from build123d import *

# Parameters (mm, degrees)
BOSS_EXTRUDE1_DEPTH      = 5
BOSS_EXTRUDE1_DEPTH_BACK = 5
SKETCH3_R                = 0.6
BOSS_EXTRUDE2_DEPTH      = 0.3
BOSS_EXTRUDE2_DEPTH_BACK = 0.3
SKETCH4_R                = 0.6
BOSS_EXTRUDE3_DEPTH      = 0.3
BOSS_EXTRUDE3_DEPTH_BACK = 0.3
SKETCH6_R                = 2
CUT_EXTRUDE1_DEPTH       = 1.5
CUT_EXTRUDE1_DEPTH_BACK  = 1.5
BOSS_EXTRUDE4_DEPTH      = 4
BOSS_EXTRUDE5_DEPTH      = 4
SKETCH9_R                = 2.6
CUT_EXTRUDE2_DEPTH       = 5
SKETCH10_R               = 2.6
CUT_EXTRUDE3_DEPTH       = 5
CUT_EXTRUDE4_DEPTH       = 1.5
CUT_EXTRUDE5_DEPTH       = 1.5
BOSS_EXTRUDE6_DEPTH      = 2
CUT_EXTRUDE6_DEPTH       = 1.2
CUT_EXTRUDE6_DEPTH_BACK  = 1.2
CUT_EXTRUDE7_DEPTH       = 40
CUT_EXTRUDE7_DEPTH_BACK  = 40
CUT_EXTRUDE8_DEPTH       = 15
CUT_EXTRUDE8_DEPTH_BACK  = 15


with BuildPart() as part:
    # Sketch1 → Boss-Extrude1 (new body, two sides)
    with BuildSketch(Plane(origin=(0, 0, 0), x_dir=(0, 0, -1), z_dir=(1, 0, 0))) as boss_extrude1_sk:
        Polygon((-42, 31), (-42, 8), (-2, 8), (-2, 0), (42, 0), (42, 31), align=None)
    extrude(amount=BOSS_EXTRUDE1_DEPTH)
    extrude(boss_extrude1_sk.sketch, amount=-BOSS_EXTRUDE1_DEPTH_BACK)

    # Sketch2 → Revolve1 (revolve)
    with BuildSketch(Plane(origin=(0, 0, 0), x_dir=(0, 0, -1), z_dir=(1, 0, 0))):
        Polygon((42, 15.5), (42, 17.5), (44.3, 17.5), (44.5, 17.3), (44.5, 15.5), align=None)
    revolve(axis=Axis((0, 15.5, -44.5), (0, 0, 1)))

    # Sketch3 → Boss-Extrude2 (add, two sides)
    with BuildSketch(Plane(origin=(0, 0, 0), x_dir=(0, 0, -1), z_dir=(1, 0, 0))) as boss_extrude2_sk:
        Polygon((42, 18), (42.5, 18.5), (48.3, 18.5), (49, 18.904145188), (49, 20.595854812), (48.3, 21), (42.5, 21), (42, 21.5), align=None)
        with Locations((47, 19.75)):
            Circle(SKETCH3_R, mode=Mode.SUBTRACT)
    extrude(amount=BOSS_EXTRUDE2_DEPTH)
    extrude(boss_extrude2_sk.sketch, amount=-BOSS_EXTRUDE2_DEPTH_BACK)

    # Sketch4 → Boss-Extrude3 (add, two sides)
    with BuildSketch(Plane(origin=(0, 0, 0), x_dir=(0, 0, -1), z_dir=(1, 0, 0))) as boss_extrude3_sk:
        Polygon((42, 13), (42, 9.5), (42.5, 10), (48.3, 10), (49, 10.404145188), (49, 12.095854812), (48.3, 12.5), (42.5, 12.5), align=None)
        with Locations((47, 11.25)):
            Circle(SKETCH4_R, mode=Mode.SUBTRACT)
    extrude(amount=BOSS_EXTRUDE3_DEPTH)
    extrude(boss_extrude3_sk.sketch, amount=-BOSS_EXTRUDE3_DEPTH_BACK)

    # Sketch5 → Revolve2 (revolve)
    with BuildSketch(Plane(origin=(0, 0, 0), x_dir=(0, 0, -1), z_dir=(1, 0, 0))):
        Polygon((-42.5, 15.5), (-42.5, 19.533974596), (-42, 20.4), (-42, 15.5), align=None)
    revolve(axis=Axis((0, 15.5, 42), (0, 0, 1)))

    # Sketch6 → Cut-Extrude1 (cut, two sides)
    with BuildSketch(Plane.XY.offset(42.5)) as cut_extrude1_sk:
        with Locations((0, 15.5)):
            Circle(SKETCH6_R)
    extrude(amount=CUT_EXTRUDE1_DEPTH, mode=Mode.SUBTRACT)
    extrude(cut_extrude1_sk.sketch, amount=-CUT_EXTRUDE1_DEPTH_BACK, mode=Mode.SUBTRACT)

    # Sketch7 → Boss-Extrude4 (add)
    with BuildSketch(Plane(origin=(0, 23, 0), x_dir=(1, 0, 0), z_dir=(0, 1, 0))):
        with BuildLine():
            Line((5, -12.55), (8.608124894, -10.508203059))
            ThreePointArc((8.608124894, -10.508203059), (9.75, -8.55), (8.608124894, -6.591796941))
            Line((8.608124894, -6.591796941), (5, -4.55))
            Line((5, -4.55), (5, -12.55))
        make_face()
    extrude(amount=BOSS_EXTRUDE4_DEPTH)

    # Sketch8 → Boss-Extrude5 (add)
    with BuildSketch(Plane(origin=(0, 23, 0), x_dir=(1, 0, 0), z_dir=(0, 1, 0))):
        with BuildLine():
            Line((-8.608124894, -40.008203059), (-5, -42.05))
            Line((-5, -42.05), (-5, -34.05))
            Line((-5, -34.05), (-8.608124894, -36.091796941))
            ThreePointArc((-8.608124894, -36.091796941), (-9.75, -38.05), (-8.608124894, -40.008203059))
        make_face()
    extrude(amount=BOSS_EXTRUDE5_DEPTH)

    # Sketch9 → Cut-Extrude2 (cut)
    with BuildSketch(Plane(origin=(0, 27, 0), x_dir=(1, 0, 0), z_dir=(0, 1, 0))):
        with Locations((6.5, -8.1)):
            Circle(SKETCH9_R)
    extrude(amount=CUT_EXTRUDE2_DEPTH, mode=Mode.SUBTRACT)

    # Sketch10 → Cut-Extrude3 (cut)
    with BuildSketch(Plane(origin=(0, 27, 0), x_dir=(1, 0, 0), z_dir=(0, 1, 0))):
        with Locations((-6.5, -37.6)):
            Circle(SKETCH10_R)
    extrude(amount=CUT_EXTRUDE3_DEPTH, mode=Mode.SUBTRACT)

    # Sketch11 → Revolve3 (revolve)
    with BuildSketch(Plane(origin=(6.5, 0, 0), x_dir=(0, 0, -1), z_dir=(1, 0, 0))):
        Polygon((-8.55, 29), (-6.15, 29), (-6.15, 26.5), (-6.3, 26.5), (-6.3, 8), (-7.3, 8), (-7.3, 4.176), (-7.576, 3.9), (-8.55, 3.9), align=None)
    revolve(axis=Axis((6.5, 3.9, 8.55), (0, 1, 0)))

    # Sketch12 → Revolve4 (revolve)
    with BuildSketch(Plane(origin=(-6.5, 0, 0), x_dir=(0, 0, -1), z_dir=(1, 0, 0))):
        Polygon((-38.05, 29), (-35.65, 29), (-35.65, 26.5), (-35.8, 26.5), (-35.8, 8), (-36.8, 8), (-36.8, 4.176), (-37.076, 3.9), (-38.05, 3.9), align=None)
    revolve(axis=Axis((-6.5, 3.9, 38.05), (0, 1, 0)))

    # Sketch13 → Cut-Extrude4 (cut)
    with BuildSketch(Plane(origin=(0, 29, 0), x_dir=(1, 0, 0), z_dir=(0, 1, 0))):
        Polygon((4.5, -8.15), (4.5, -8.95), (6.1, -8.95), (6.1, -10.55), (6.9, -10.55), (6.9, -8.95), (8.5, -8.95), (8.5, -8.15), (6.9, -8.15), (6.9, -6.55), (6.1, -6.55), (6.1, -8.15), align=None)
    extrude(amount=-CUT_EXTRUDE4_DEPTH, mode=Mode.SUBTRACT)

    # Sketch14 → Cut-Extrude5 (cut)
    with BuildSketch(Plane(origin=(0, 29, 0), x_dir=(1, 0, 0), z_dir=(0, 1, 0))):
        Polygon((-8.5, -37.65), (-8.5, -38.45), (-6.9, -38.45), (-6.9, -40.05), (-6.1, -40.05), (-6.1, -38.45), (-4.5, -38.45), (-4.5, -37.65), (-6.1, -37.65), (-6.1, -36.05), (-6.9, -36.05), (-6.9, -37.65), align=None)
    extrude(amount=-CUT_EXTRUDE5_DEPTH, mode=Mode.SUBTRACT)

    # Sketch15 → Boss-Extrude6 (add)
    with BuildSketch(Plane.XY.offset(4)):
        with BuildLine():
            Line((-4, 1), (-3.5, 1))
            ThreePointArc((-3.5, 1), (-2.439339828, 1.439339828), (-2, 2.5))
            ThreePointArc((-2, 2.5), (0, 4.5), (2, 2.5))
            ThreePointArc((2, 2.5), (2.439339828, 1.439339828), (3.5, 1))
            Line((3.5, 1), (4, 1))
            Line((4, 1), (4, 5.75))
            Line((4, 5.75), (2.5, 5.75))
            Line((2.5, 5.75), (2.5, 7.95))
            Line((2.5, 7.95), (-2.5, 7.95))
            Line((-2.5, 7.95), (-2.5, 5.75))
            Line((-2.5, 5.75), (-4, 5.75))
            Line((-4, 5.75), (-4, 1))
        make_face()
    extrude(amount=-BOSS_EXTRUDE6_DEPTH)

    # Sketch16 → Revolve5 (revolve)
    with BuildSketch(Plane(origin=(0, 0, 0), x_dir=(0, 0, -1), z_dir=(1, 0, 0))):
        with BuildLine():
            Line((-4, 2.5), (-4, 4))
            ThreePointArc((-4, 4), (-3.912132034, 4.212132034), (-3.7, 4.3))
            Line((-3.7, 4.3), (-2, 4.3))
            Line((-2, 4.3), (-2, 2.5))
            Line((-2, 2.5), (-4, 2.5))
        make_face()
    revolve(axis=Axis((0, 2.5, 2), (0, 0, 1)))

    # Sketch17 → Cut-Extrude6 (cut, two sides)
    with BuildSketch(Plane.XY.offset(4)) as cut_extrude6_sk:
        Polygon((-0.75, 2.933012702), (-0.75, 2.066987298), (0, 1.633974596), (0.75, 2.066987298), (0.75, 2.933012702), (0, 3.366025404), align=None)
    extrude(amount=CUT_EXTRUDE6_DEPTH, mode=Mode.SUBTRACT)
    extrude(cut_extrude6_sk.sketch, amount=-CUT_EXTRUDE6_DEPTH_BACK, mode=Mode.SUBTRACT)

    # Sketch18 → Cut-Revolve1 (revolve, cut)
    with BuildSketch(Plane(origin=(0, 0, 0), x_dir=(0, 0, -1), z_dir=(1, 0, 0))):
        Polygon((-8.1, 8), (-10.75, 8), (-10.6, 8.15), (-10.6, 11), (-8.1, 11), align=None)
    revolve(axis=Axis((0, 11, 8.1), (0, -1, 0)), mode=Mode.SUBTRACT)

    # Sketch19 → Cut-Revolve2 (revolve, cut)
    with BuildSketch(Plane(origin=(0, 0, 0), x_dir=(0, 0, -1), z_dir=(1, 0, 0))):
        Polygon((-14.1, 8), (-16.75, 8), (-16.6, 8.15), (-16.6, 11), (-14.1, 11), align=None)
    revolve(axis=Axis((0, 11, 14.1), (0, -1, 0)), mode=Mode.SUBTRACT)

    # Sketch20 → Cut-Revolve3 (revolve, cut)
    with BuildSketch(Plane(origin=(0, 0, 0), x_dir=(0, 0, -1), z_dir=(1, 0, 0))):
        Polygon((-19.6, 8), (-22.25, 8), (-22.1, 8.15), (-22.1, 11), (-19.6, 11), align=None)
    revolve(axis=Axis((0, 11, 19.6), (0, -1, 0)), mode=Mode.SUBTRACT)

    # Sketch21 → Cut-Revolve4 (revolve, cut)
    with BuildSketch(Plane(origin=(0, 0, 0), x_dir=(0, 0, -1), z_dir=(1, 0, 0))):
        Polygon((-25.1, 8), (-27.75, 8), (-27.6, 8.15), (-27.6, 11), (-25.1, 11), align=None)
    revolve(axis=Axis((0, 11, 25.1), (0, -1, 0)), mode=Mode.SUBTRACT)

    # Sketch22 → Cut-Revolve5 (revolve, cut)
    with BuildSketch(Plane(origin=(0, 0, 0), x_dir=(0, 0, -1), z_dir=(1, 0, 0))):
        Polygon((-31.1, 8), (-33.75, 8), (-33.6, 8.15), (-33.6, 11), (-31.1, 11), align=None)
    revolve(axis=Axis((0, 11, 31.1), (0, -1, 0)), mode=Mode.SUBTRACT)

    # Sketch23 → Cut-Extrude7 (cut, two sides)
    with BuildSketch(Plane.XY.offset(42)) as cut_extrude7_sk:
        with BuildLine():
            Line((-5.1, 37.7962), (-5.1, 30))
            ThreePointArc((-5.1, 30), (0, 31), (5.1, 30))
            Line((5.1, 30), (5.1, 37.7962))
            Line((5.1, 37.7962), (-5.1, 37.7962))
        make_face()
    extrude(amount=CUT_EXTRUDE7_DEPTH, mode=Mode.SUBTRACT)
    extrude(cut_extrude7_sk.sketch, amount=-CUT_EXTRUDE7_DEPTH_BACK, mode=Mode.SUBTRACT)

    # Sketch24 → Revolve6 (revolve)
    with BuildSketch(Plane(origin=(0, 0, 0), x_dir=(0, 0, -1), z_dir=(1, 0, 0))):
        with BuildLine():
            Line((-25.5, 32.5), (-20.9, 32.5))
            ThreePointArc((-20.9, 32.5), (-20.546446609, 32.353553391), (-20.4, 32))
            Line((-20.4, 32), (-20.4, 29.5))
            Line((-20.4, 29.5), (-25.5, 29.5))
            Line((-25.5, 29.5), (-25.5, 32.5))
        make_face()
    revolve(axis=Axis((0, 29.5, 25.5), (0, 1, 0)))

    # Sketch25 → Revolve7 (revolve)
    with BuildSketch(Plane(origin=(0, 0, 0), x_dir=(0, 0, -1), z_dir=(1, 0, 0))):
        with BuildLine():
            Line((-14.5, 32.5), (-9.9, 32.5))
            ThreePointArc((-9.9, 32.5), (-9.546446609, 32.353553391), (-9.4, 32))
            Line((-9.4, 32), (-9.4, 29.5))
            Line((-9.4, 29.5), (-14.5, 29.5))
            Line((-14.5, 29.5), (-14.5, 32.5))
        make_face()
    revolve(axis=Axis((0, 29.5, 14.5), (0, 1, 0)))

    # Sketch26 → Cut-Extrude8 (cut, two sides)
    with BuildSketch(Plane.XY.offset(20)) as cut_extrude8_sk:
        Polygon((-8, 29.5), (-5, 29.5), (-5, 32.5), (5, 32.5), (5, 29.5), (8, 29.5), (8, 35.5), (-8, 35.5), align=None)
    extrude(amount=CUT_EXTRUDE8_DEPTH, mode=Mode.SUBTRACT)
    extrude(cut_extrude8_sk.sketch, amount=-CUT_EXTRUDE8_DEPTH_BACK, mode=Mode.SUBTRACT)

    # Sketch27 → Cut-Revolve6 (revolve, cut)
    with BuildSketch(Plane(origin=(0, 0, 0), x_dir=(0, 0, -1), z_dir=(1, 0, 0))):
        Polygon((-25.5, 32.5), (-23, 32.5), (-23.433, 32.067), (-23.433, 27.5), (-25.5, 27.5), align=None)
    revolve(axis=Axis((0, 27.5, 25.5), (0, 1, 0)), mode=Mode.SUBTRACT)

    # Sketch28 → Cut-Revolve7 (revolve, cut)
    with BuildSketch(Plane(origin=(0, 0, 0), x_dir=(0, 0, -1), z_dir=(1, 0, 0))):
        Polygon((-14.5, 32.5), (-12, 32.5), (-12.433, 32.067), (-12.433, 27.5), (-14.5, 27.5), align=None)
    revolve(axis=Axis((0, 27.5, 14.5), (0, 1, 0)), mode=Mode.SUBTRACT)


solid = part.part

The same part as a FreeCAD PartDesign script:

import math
import FreeCAD as App
import Part
import Sketcher
Q = App.Units.Quantity


def add_polygon(sketch, points):
    """Adds a closed chain of lines whose ends are joined by coincident constraints."""
    first, n = sketch.GeometryCount, len(points)
    for a, b in zip(points, points[1:] + points[:1]):
        sketch.addGeometry(Part.LineSegment(App.Vector(*a, 0), App.Vector(*b, 0)), False)
    for i in range(n):
        sketch.addConstraint(Sketcher.Constraint("Coincident", first + i, 2, first + (i + 1) % n, 1))

doc = App.newDocument("Part")
body = doc.addObject("PartDesign::Body", "Body")

# Sketch on YZ plane
sketch1 = body.newObject("Sketcher::SketchObject", "Sketch")
sketch1.AttachmentSupport = (doc.getObject("YZ_Plane"), [""])
sketch1.MapMode = "FlatFace"
add_polygon(sketch1, [(31, 42), (8, 42), (8, 2), (0, 2), (0, -42), (31, -42)])  # lines 0-5
sketch1.addConstraint([
    Sketcher.Constraint("Horizontal", 0),
    Sketcher.Constraint("Vertical", 1),
    Sketcher.Constraint("Horizontal", 2),
    Sketcher.Constraint("Vertical", 3),
    Sketcher.Constraint("Horizontal", 4),
    Sketcher.Constraint("Vertical", 5),
    Sketcher.Constraint("PointOnObject", 2, 2, -2),
    Sketcher.Constraint("DistanceX", 0, 2, 0, 1, Q("23 mm")),
    Sketcher.Constraint("DistanceX", 2, 2, 2, 1, Q("8 mm")),
    Sketcher.Constraint("DistanceY", 1, 2, 1, 1, Q("40 mm")),
    Sketcher.Constraint("DistanceY", 3, 2, 3, 1, Q("44 mm")),
    Sketcher.Constraint("DistanceY", -1, 1, 0, 2, Q("42 mm")),
])
pad1 = body.newObject("PartDesign::Pad", "Pad")
pad1.Profile = sketch1
pad1.Type = "TwoLengths"
pad1.Length = 5
pad1.Length2 = 5

# Sketch on YZ plane
sketch2 = body.newObject("Sketcher::SketchObject", "Sketch001")
sketch2.AttachmentSupport = (doc.getObject("YZ_Plane"), [""])
sketch2.MapMode = "FlatFace"
add_polygon(sketch2, [(17.5, -42), (15.5, -42), (15.5, -44.5), (17.3, -44.5), (17.5, -44.3)])  # lines 0-4
sketch2.addGeometry(Part.LineSegment(App.Vector(15.5, -44.5, 0), App.Vector(15.5, -42, 0)), True)  # axis
sketch2.addConstraint([
    Sketcher.Constraint("Horizontal", 0),
    Sketcher.Constraint("Vertical", 1),
    Sketcher.Constraint("Horizontal", 2),
    Sketcher.Constraint("Vertical", 4),
    Sketcher.Constraint("Vertical", 5),
    Sketcher.Constraint("Coincident", 5, 1, 1, 2),
    Sketcher.Constraint("Horizontal", 4, 2, 5, 2),
    Sketcher.Constraint("DistanceX", 0, 2, 0, 1, Q("2 mm")),
    Sketcher.Constraint("Angle", 3, Q("45 deg")),
    Sketcher.Constraint("DistanceX", 2, 1, 2, 2, Q("1.8 mm")),
    Sketcher.Constraint("DistanceY", 1, 2, 1, 1, Q("2.5 mm")),
    Sketcher.Constraint("DistanceY", 0, 2, -1, 1, Q("42 mm")),
    Sketcher.Constraint("DistanceX", -1, 1, 0, 2, Q("15.5 mm")),
])
revolution = body.newObject("PartDesign::Revolution", "Revolution")
revolution.Profile = sketch2
revolution.ReferenceAxis = (sketch2, ["Axis0"])
revolution.Angle = 360

# Sketch on YZ plane
sketch3 = body.newObject("Sketcher::SketchObject", "Sketch002")
sketch3.AttachmentSupport = (doc.getObject("YZ_Plane"), [""])
sketch3.MapMode = "FlatFace"
add_polygon(sketch3, [(18, -42), (18.5, -42.5), (18.5, -48.3), (18.9, -49), (20.6, -49), (21, -48.3), (21, -42.5), (21.5, -42)])  # lines 0-7
sketch3.addGeometry(Part.Circle(App.Vector(19.8, -47, 0), App.Vector(0, 0, 1), 0.6), False)  # 8
sketch3.addConstraint([
    Sketcher.Constraint("Vertical", 1),
    Sketcher.Constraint("Horizontal", 3),
    Sketcher.Constraint("Vertical", 5),
    Sketcher.Constraint("Horizontal", 7),
    Sketcher.Constraint("Perpendicular", 0, 6),
    Sketcher.Constraint("Horizontal", 1, 2, 4, 2),
    Sketcher.Constraint("Horizontal", 0, 2, 5, 2),
    Sketcher.Constraint("Equal", 2, 4),
    Sketcher.Constraint("Equal", 0, 6),
    Sketcher.Constraint("Diameter", 8, Q("1.2 mm")),
    Sketcher.Constraint("Angle", 2, Q("-60 deg")),
    Sketcher.Constraint("DistanceX", 7, 2, 7, 1, Q("3.5 mm")),
    Sketcher.Constraint("DistanceY", 1, 2, 1, 1, Q("5.8 mm")),
    Sketcher.Constraint("DistanceY", 8, 3, -1, 1, Q("47 mm")),
    Sketcher.Constraint("DistanceY", 2, 2, -1, 1, Q("49 mm")),
    Sketcher.Constraint("DistanceX", -1, 1, 4, 2, Q("21 mm")),
    Sketcher.Constraint("DistanceY", 6, 2, -1, 1, Q("42 mm")),
    Sketcher.Constraint("DistanceX", -1, 1, 7, 2, Q("18 mm")),
    Sketcher.Constraint("DistanceX", -1, 1, 8, 3, Q("19.75 mm")),
])
pad2 = body.newObject("PartDesign::Pad", "Pad001")
pad2.Profile = sketch3
pad2.Type = "TwoLengths"
pad2.Length = 0.3
pad2.Length2 = 0.3

# Sketch on YZ plane
sketch4 = body.newObject("Sketcher::SketchObject", "Sketch003")
sketch4.AttachmentSupport = (doc.getObject("YZ_Plane"), [""])
sketch4.MapMode = "FlatFace"
add_polygon(sketch4, [(13, -42), (9.5, -42), (10, -42.5), (10, -48.3), (10.4, -49), (12.1, -49), (12.5, -48.3), (12.5, -42.5)])  # lines 0-7
sketch4.addGeometry(Part.Circle(App.Vector(11.2, -47, 0), App.Vector(0, 0, 1), 0.6), False)  # 8
sketch4.addConstraint([
    Sketcher.Constraint("Horizontal", 0),
    Sketcher.Constraint("Vertical", 2),
    Sketcher.Constraint("Horizontal", 4),
    Sketcher.Constraint("Vertical", 6),
    Sketcher.Constraint("Perpendicular", 1, 7),
    Sketcher.Constraint("Horizontal", 2, 2, 5, 2),
    Sketcher.Constraint("Horizontal", 1, 2, 6, 2),
    Sketcher.Constraint("Equal", 3, 5),
    Sketcher.Constraint("Equal", 1, 7),
    Sketcher.Constraint("Diameter", 8, Q("1.2 mm")),
    Sketcher.Constraint("Angle", 3, Q("-60 deg")),
    Sketcher.Constraint("DistanceX", 0, 2, 0, 1, Q("3.5 mm")),
    Sketcher.Constraint("DistanceY", 2, 2, 2, 1, Q("5.8 mm")),
    Sketcher.Constraint("DistanceY", 8, 3, -1, 1, Q("47 mm")),
    Sketcher.Constraint("DistanceY", 0, 2, -1, 1, Q("42 mm")),
    Sketcher.Constraint("DistanceX", -1, 1, 1, 2, Q("10 mm")),
    Sketcher.Constraint("DistanceY", 3, 2, -1, 1, Q("49 mm")),
    Sketcher.Constraint("DistanceX", -1, 1, 7, 2, Q("13 mm")),
    Sketcher.Constraint("DistanceX", -1, 1, 8, 3, Q("11.25 mm")),
])
pad3 = body.newObject("PartDesign::Pad", "Pad002")
pad3.Profile = sketch4
pad3.Type = "TwoLengths"
pad3.Length = 0.3
pad3.Length2 = 0.3

# Sketch on YZ plane
sketch5 = body.newObject("Sketcher::SketchObject", "Sketch004")
sketch5.AttachmentSupport = (doc.getObject("YZ_Plane"), [""])
sketch5.MapMode = "FlatFace"
add_polygon(sketch5, [(19.5, 42.5), (15.5, 42.5), (15.5, 42), (20.4, 42)])  # lines 0-3
sketch5.addGeometry(Part.LineSegment(App.Vector(15.5, 42, 0), App.Vector(15.5, 42.5, 0)), True)  # axis
sketch5.addConstraint([
    Sketcher.Constraint("Horizontal", 0),
    Sketcher.Constraint("Vertical", 1),
    Sketcher.Constraint("Horizontal", 2),
    Sketcher.Constraint("Vertical", 4),
    Sketcher.Constraint("Coincident", 4, 1, 1, 2),
    Sketcher.Constraint("Horizontal", 3, 2, 4, 2),
    Sketcher.Constraint("Angle", 3, Q("150 deg")),
    Sketcher.Constraint("Distance", 3, Q("1 mm")),
    Sketcher.Constraint("DistanceX", 2, 1, 2, 2, Q("4.9 mm")),
    Sketcher.Constraint("DistanceY", -1, 1, 1, 2, Q("42 mm")),
    Sketcher.Constraint("DistanceX", -1, 1, 0, 2, Q("15.5 mm")),
])
revolution2 = body.newObject("PartDesign::Revolution", "Revolution001")
revolution2.Profile = sketch5
revolution2.ReferenceAxis = (sketch5, ["Axis0"])
revolution2.Angle = 360

# Sketch on XY plane
sketch6 = body.newObject("Sketcher::SketchObject", "Sketch005")
sketch6.AttachmentSupport = (doc.getObject("XY_Plane"), [""])
sketch6.MapMode = "FlatFace"
sketch6.AttachmentOffset = App.Placement(App.Vector(0, 0, 42.5), App.Rotation())
sketch6.addGeometry(Part.Circle(App.Vector(0, 15.5, 0), App.Vector(0, 0, 1), 2), False)
sketch6.addConstraint([
    Sketcher.Constraint("PointOnObject", 0, 3, -2),
    Sketcher.Constraint("Diameter", 0, Q("4 mm")),
    Sketcher.Constraint("DistanceY", -1, 1, 0, 3, Q("15.5 mm")),
])
pocket1 = body.newObject("PartDesign::Pocket", "Pocket")
pocket1.Profile = sketch6
pocket1.Type = "TwoLengths"
pocket1.Length = 1.5
pocket1.Length2 = 1.5
pocket1.Reversed = True

# Sketch on XZ plane
sketch7 = body.newObject("Sketcher::SketchObject", "Sketch006")
sketch7.AttachmentSupport = (doc.getObject("XZ_Plane"), [""])
sketch7.MapMode = "FlatFace"
sketch7.AttachmentOffset = App.Placement(App.Vector(0, 0, -23), App.Rotation())
sketch7.addGeometry([
    Part.LineSegment(App.Vector(5, 12.6, 0), App.Vector(8.6, 10.5, 0)),
    Part.ArcOfCircle(Part.Circle(App.Vector(7.5, 8.6, 0), App.Vector(0, 0, 1), 2.2), math.radians(-60), math.radians(60)),
    Part.LineSegment(App.Vector(8.6, 6.6, 0), App.Vector(5, 4.5, 0)),
    Part.LineSegment(App.Vector(5, 4.5, 0), App.Vector(5, 12.6, 0)),
], False)
sketch7.addConstraint([
    Sketcher.Constraint("Tangent", 0, 2, 1, 2),
    Sketcher.Constraint("Tangent", 1, 1, 2, 1),
    Sketcher.Constraint("Coincident", 2, 2, 3, 1),
    Sketcher.Constraint("Coincident", 3, 2, 0, 1),
    Sketcher.Constraint("Vertical", 3),
    Sketcher.Constraint("Vertical", 0, 2, 1, 1),
    Sketcher.Constraint("DistanceY", 3, 1, 3, 2, Q("8 mm")),
    Sketcher.Constraint("Radius", 1, Q("2.25 mm")),
    Sketcher.Constraint("DistanceX", -1, 1, 2, 2, Q("5 mm")),
    Sketcher.Constraint("DistanceX", -1, 1, 1, 3, Q("7.5 mm")),
    Sketcher.Constraint("DistanceY", -1, 1, 1, 3, Q("8.55 mm")),
])
pad4 = body.newObject("PartDesign::Pad", "Pad003")
pad4.Profile = sketch7
pad4.Length = 4
pad4.Reversed = True

# Sketch on XZ plane
sketch8 = body.newObject("Sketcher::SketchObject", "Sketch007")
sketch8.AttachmentSupport = (doc.getObject("XZ_Plane"), [""])
sketch8.MapMode = "FlatFace"
sketch8.AttachmentOffset = App.Placement(App.Vector(0, 0, -23), App.Rotation())
sketch8.addGeometry([
    Part.LineSegment(App.Vector(-8.6, 40, 0), App.Vector(-5, 42, 0)),
    Part.LineSegment(App.Vector(-5, 42, 0), App.Vector(-5, 34, 0)),
    Part.LineSegment(App.Vector(-5, 34, 0), App.Vector(-8.6, 36.1, 0)),
    Part.ArcOfCircle(Part.Circle(App.Vector(-7.5, 38, 0), App.Vector(0, 0, 1), 2.2), math.radians(120), math.radians(240)),
], False)
sketch8.addConstraint([
    Sketcher.Constraint("Coincident", 0, 2, 1, 1),
    Sketcher.Constraint("Coincident", 1, 2, 2, 1),
    Sketcher.Constraint("Tangent", 2, 2, 3, 2),
    Sketcher.Constraint("Tangent", 3, 1, 0, 1),
    Sketcher.Constraint("Vertical", 1),
    Sketcher.Constraint("Vertical", 2, 2, 3, 1),
    Sketcher.Constraint("DistanceY", 1, 2, 1, 1, Q("8 mm")),
    Sketcher.Constraint("Radius", 3, Q("2.25 mm")),
    Sketcher.Constraint("DistanceX", 0, 2, -1, 1, Q("5 mm")),
    Sketcher.Constraint("DistanceX", 3, 3, -1, 1, Q("7.5 mm")),
    Sketcher.Constraint("DistanceY", -1, 1, 3, 3, Q("38.05 mm")),
])
pad5 = body.newObject("PartDesign::Pad", "Pad004")
pad5.Profile = sketch8
pad5.Length = 4
pad5.Reversed = True

# Sketch on XZ plane
sketch9 = body.newObject("Sketcher::SketchObject", "Sketch008")
sketch9.AttachmentSupport = (doc.getObject("XZ_Plane"), [""])
sketch9.MapMode = "FlatFace"
sketch9.AttachmentOffset = App.Placement(App.Vector(0, 0, -27), App.Rotation())
sketch9.addGeometry(Part.Circle(App.Vector(6.5, 8.1, 0), App.Vector(0, 0, 1), 2.6), False)
sketch9.addConstraint([
    Sketcher.Constraint("Diameter", 0, Q("5.2 mm")),
    Sketcher.Constraint("DistanceX", -1, 1, 0, 3, Q("6.5 mm")),
    Sketcher.Constraint("DistanceY", -1, 1, 0, 3, Q("8.1 mm")),
])
pocket2 = body.newObject("PartDesign::Pocket", "Pocket001")
pocket2.Profile = sketch9
pocket2.Length = 5

# Sketch on XZ plane
sketch10 = body.newObject("Sketcher::SketchObject", "Sketch009")
sketch10.AttachmentSupport = (doc.getObject("XZ_Plane"), [""])
sketch10.MapMode = "FlatFace"
sketch10.AttachmentOffset = App.Placement(App.Vector(0, 0, -27), App.Rotation())
sketch10.addGeometry(Part.Circle(App.Vector(-6.5, 37.6, 0), App.Vector(0, 0, 1), 2.6), False)
sketch10.addConstraint([
    Sketcher.Constraint("Diameter", 0, Q("5.2 mm")),
    Sketcher.Constraint("DistanceX", 0, 3, -1, 1, Q("6.5 mm")),
    Sketcher.Constraint("DistanceY", -1, 1, 0, 3, Q("37.6 mm")),
])
pocket3 = body.newObject("PartDesign::Pocket", "Pocket002")
pocket3.Profile = sketch10
pocket3.Length = 5

# Sketch on YZ plane
sketch11 = body.newObject("Sketcher::SketchObject", "Sketch010")
sketch11.AttachmentSupport = (doc.getObject("YZ_Plane"), [""])
sketch11.MapMode = "FlatFace"
sketch11.AttachmentOffset = App.Placement(App.Vector(0, 0, 6.5), App.Rotation())
add_polygon(sketch11, [(29, 6.15), (29, 8.55), (3.9, 8.55), (3.9, 7.58), (4.18, 7.3), (8, 7.3), (8, 6.3), (26.5, 6.3), (26.5, 6.15)])  # lines 0-8
sketch11.addGeometry(Part.LineSegment(App.Vector(3.9, 8.55, 0), App.Vector(29, 8.55, 0)), True)  # axis
sketch11.addConstraint([
    Sketcher.Constraint("Vertical", 0),
    Sketcher.Constraint("Horizontal", 1),
    Sketcher.Constraint("Vertical", 2),
    Sketcher.Constraint("Horizontal", 4),
    Sketcher.Constraint("Vertical", 5),
    Sketcher.Constraint("Horizontal", 6),
    Sketcher.Constraint("Vertical", 7),
    Sketcher.Constraint("Horizontal", 8),
    Sketcher.Constraint("Horizontal", 9),
    Sketcher.Constraint("Coincident", 9, 1, 1, 2),
    Sketcher.Constraint("Vertical", 8, 2, 9, 2),
    Sketcher.Constraint("DistanceY", 5, 2, 5, 1, Q("1 mm")),
    Sketcher.Constraint("Angle", 3, Q("-45 deg")),
    Sketcher.Constraint("DistanceX", 1, 2, 1, 1, Q("25.1 mm")),
    Sketcher.Constraint("DistanceX", 6, 1, 6, 2, Q("18.5 mm")),
    Sketcher.Constraint("DistanceX", 8, 1, 8, 2, Q("2.5 mm")),
    Sketcher.Constraint("DistanceY", 0, 1, 0, 2, Q("2.4 mm")),
    Sketcher.Constraint("DistanceX", -1, 1, 0, 2, Q("29 mm")),
    Sketcher.Constraint("DistanceY", 7, 2, 7, 1, Q("0.15 mm")),
    Sketcher.Constraint("DistanceY", -1, 1, 3, 2, Q("7.3 mm")),
    Sketcher.Constraint("DistanceX", 4, 1, 4, 2, Q("3.824 mm")),
])
revolution3 = body.newObject("PartDesign::Revolution", "Revolution002")
revolution3.Profile = sketch11
revolution3.ReferenceAxis = (sketch11, ["Axis0"])
revolution3.Angle = 360

# Sketch on YZ plane
sketch12 = body.newObject("Sketcher::SketchObject", "Sketch011")
sketch12.AttachmentSupport = (doc.getObject("YZ_Plane"), [""])
sketch12.MapMode = "FlatFace"
sketch12.AttachmentOffset = App.Placement(App.Vector(0, 0, -6.5), App.Rotation())
add_polygon(sketch12, [(29, 35.65), (29, 38.05), (3.9, 38.05), (3.9, 37.08), (4.18, 36.8), (8, 36.8), (8, 35.8), (26.5, 35.8), (26.5, 35.65)])  # lines 0-8
sketch12.addGeometry(Part.LineSegment(App.Vector(3.9, 38.05, 0), App.Vector(29, 38.05, 0)), True)  # axis
sketch12.addConstraint([
    Sketcher.Constraint("Vertical", 0),
    Sketcher.Constraint("Horizontal", 1),
    Sketcher.Constraint("Vertical", 2),
    Sketcher.Constraint("Horizontal", 4),
    Sketcher.Constraint("Vertical", 5),
    Sketcher.Constraint("Horizontal", 6),
    Sketcher.Constraint("Vertical", 7),
    Sketcher.Constraint("Horizontal", 8),
    Sketcher.Constraint("Horizontal", 9),
    Sketcher.Constraint("Coincident", 9, 1, 1, 2),
    Sketcher.Constraint("Vertical", 8, 2, 9, 2),
    Sketcher.Constraint("DistanceY", 5, 2, 5, 1, Q("1 mm")),
    Sketcher.Constraint("Angle", 3, Q("-45 deg")),
    Sketcher.Constraint("DistanceX", 1, 2, 1, 1, Q("25.1 mm")),
    Sketcher.Constraint("DistanceX", 6, 1, 6, 2, Q("18.5 mm")),
    Sketcher.Constraint("DistanceX", 8, 1, 8, 2, Q("2.5 mm")),
    Sketcher.Constraint("DistanceY", 0, 1, 0, 2, Q("2.4 mm")),
    Sketcher.Constraint("DistanceX", -1, 1, 0, 2, Q("29 mm")),
    Sketcher.Constraint("DistanceY", 7, 2, 7, 1, Q("0.15 mm")),
    Sketcher.Constraint("DistanceY", -1, 1, 3, 2, Q("36.8 mm")),
    Sketcher.Constraint("DistanceX", 4, 1, 4, 2, Q("3.824 mm")),
])
revolution4 = body.newObject("PartDesign::Revolution", "Revolution003")
revolution4.Profile = sketch12
revolution4.ReferenceAxis = (sketch12, ["Axis0"])
revolution4.Angle = 360

# Sketch on XZ plane
sketch13 = body.newObject("Sketcher::SketchObject", "Sketch012")
sketch13.AttachmentSupport = (doc.getObject("XZ_Plane"), [""])
sketch13.MapMode = "FlatFace"
sketch13.AttachmentOffset = App.Placement(App.Vector(0, 0, -29), App.Rotation())
add_polygon(sketch13, [(4.5, 8.2), (4.5, 8.9), (6.1, 8.9), (6.1, 10.6), (6.9, 10.6), (6.9, 8.9), (8.5, 8.9), (8.5, 8.2), (6.9, 8.2), (6.9, 6.5), (6.1, 6.5), (6.1, 8.2)])  # lines 0-11
sketch13.addConstraint([
    Sketcher.Constraint("Vertical", 0),
    Sketcher.Constraint("Horizontal", 1),
    Sketcher.Constraint("Vertical", 2),
    Sketcher.Constraint("Horizontal", 3),
    Sketcher.Constraint("Vertical", 4),
    Sketcher.Constraint("Horizontal", 5),
    Sketcher.Constraint("Vertical", 6),
    Sketcher.Constraint("Horizontal", 7),
    Sketcher.Constraint("Vertical", 8),
    Sketcher.Constraint("Horizontal", 9),
    Sketcher.Constraint("Vertical", 10),
    Sketcher.Constraint("Horizontal", 11),
    Sketcher.Constraint("Horizontal", 1, 2, 4, 2),
    Sketcher.Constraint("Horizontal", 7, 2, 10, 2),
    Sketcher.Constraint("Vertical", 4, 2, 7, 2),
    Sketcher.Constraint("Vertical", 2, 2, 9, 2),
    Sketcher.Constraint("Equal", 1, 5),
    Sketcher.Constraint("Equal", 9, 0),
    Sketcher.Constraint("Equal", 11, 2),
    Sketcher.Constraint("Equal", 4, 8),
    Sketcher.Constraint("DistanceX", 1, 1, 1, 2, Q("1.6 mm")),
    Sketcher.Constraint("DistanceX", 3, 1, 3, 2, Q("0.8 mm")),
    Sketcher.Constraint("DistanceX", -1, 1, 0, 2, Q("4.5 mm")),
    Sketcher.Constraint("DistanceY", -1, 1, 0, 2, Q("8.95 mm")),
])
pocket4 = body.newObject("PartDesign::Pocket", "Pocket003")
pocket4.Profile = sketch13
pocket4.Length = 1.5
pocket4.Reversed = True

# Sketch on XZ plane
sketch14 = body.newObject("Sketcher::SketchObject", "Sketch013")
sketch14.AttachmentSupport = (doc.getObject("XZ_Plane"), [""])
sketch14.MapMode = "FlatFace"
sketch14.AttachmentOffset = App.Placement(App.Vector(0, 0, -29), App.Rotation())
add_polygon(sketch14, [(-8.5, 37.6), (-8.5, 38.5), (-6.9, 38.5), (-6.9, 40), (-6.1, 40), (-6.1, 38.5), (-4.5, 38.5), (-4.5, 37.6), (-6.1, 37.6), (-6.1, 36), (-6.9, 36), (-6.9, 37.6)])  # lines 0-11
sketch14.addConstraint([
    Sketcher.Constraint("Vertical", 0),
    Sketcher.Constraint("Horizontal", 1),
    Sketcher.Constraint("Vertical", 2),
    Sketcher.Constraint("Horizontal", 3),
    Sketcher.Constraint("Vertical", 4),
    Sketcher.Constraint("Horizontal", 5),
    Sketcher.Constraint("Vertical", 6),
    Sketcher.Constraint("Horizontal", 7),
    Sketcher.Constraint("Vertical", 8),
    Sketcher.Constraint("Horizontal", 9),
    Sketcher.Constraint("Vertical", 10),
    Sketcher.Constraint("Horizontal", 11),
    Sketcher.Constraint("Horizontal", 1, 2, 4, 2),
    Sketcher.Constraint("Horizontal", 7, 2, 10, 2),
    Sketcher.Constraint("Vertical", 4, 2, 7, 2),
    Sketcher.Constraint("Vertical", 2, 2, 9, 2),
    Sketcher.Constraint("Equal", 1, 5),
    Sketcher.Constraint("Equal", 9, 0),
    Sketcher.Constraint("Equal", 11, 2),
    Sketcher.Constraint("Equal", 4, 8),
    Sketcher.Constraint("DistanceX", 1, 1, 1, 2, Q("1.6 mm")),
    Sketcher.Constraint("DistanceX", 3, 1, 3, 2, Q("0.8 mm")),
    Sketcher.Constraint("DistanceX", 0, 2, -1, 1, Q("8.5 mm")),
    Sketcher.Constraint("DistanceY", -1, 1, 0, 2, Q("38.45 mm")),
])
pocket5 = body.newObject("PartDesign::Pocket", "Pocket004")
pocket5.Profile = sketch14
pocket5.Length = 1.5
pocket5.Reversed = True

# Sketch on XY plane
sketch15 = body.newObject("Sketcher::SketchObject", "Sketch014")
sketch15.AttachmentSupport = (doc.getObject("XY_Plane"), [""])
sketch15.MapMode = "FlatFace"
sketch15.AttachmentOffset = App.Placement(App.Vector(0, 0, 4), App.Rotation())
sketch15.addGeometry([
    Part.LineSegment(App.Vector(-4, 1, 0), App.Vector(-3.5, 1, 0)),  # 0
    Part.ArcOfCircle(Part.Circle(App.Vector(-3.5, 2.5, 0), App.Vector(0, 0, 1), 1.5), math.radians(-90), math.radians(0)),  # 1
    Part.ArcOfCircle(Part.Circle(App.Vector(0, 2.5, 0), App.Vector(0, 0, 1), 2), math.radians(0), math.radians(180)),  # 2
    Part.ArcOfCircle(Part.Circle(App.Vector(3.5, 2.5, 0), App.Vector(0, 0, 1), 1.5), math.radians(180), math.radians(270)),  # 3
    Part.LineSegment(App.Vector(3.5, 1, 0), App.Vector(4, 1, 0)),  # 4
    Part.LineSegment(App.Vector(4, 1, 0), App.Vector(4, 5.8, 0)),  # 5
    Part.LineSegment(App.Vector(4, 5.8, 0), App.Vector(2.5, 5.8, 0)),  # 6
    Part.LineSegment(App.Vector(2.5, 5.8, 0), App.Vector(2.5, 8, 0)),  # 7
    Part.LineSegment(App.Vector(2.5, 8, 0), App.Vector(-2.5, 8, 0)),  # 8
    Part.LineSegment(App.Vector(-2.5, 8, 0), App.Vector(-2.5, 5.8, 0)),  # 9
    Part.LineSegment(App.Vector(-2.5, 5.8, 0), App.Vector(-4, 5.8, 0)),  # 10
    Part.LineSegment(App.Vector(-4, 5.8, 0), App.Vector(-4, 1, 0)),  # 11
], False)
sketch15.addConstraint([
    Sketcher.Constraint("Tangent", 0, 2, 1, 1),
    Sketcher.Constraint("Tangent", 1, 2, 2, 2),
    Sketcher.Constraint("Tangent", 2, 1, 3, 1),
    Sketcher.Constraint("Tangent", 3, 2, 4, 1),
    Sketcher.Constraint("Coincident", 4, 2, 5, 1),
    Sketcher.Constraint("Coincident", 5, 2, 6, 1),
    Sketcher.Constraint("Coincident", 6, 2, 7, 1),
    Sketcher.Constraint("Coincident", 7, 2, 8, 1),
    Sketcher.Constraint("Coincident", 8, 2, 9, 1),
    Sketcher.Constraint("Coincident", 9, 2, 10, 1),
    Sketcher.Constraint("Coincident", 10, 2, 11, 1),
    Sketcher.Constraint("Coincident", 11, 2, 0, 1),
    Sketcher.Constraint("Horizontal", 0),
    Sketcher.Constraint("Horizontal", 4),
    Sketcher.Constraint("Vertical", 5),
    Sketcher.Constraint("Horizontal", 6),
    Sketcher.Constraint("Vertical", 7),
    Sketcher.Constraint("Horizontal", 8),
    Sketcher.Constraint("Vertical", 9),
    Sketcher.Constraint("Horizontal", 10),
    Sketcher.Constraint("Vertical", 11),
    Sketcher.Constraint("Equal", 1, 3),
    Sketcher.Constraint("Symmetric", 1, 3, 3, 3, -2),
    Sketcher.Constraint("Symmetric", 6, 2, 9, 2, -2),
    Sketcher.Constraint("Horizontal", 1, 3, 2, 3),
    Sketcher.Constraint("Equal", 0, 4),
    Sketcher.Constraint("Radius", 2, Q("2 mm")),
    Sketcher.Constraint("Radius", 1, Q("1.5 mm")),
    Sketcher.Constraint("DistanceX", 8, 2, 8, 1, Q("5 mm")),
    Sketcher.Constraint("DistanceX", 0, 1, 0, 2, Q("0.5 mm")),
    Sketcher.Constraint("DistanceY", 7, 1, 7, 2, Q("2.2 mm")),
    Sketcher.Constraint("DistanceY", -1, 1, 0, 2, Q("1 mm")),
    Sketcher.Constraint("DistanceY", 5, 1, 5, 2, Q("4.75 mm")),
])
pad6 = body.newObject("PartDesign::Pad", "Pad005")
pad6.Profile = sketch15
pad6.Length = 2
pad6.Reversed = True

# Sketch on YZ plane
sketch16 = body.newObject("Sketcher::SketchObject", "Sketch015")
sketch16.AttachmentSupport = (doc.getObject("YZ_Plane"), [""])
sketch16.MapMode = "FlatFace"
sketch16.addGeometry([
    Part.LineSegment(App.Vector(4, 4, 0), App.Vector(2.5, 4, 0)),  # 0
    Part.LineSegment(App.Vector(2.5, 4, 0), App.Vector(2.5, 2, 0)),  # 1
    Part.LineSegment(App.Vector(2.5, 2, 0), App.Vector(4.3, 2, 0)),  # 2
    Part.LineSegment(App.Vector(4.3, 2, 0), App.Vector(4.3, 3.7, 0)),  # 3
    Part.ArcOfCircle(Part.Circle(App.Vector(4, 3.7, 0), App.Vector(0, 0, 1), 0.3), math.radians(0), math.radians(90)),  # 4
], False)
sketch16.addGeometry(Part.LineSegment(App.Vector(2.5, 2, 0), App.Vector(2.5, 4, 0)), True)  # axis
sketch16.addConstraint([
    Sketcher.Constraint("Coincident", 0, 2, 1, 1),
    Sketcher.Constraint("Coincident", 1, 2, 2, 1),
    Sketcher.Constraint("Coincident", 2, 2, 3, 1),
    Sketcher.Constraint("Tangent", 3, 2, 4, 1),
    Sketcher.Constraint("Tangent", 4, 2, 0, 1),
    Sketcher.Constraint("Horizontal", 0),
    Sketcher.Constraint("Vertical", 1),
    Sketcher.Constraint("Horizontal", 2),
    Sketcher.Constraint("Vertical", 3),
    Sketcher.Constraint("Vertical", 5),
    Sketcher.Constraint("Coincident", 5, 1, 1, 2),
    Sketcher.Constraint("Horizontal", 4, 2, 5, 2),
    Sketcher.Constraint("Radius", 4, Q("0.3 mm")),
    Sketcher.Constraint("DistanceY", 1, 2, 1, 1, Q("2 mm")),
    Sketcher.Constraint("DistanceX", 0, 2, 0, 1, Q("1.5 mm")),
    Sketcher.Constraint("DistanceX", -1, 1, 4, 3, Q("4 mm")),
    Sketcher.Constraint("DistanceY", -1, 1, 0, 2, Q("4 mm")),
])
revolution5 = body.newObject("PartDesign::Revolution", "Revolution004")
revolution5.Profile = sketch16
revolution5.ReferenceAxis = (sketch16, ["Axis0"])
revolution5.Angle = 360

# Sketch on XY plane
sketch17 = body.newObject("Sketcher::SketchObject", "Sketch016")
sketch17.AttachmentSupport = (doc.getObject("XY_Plane"), [""])
sketch17.MapMode = "FlatFace"
sketch17.AttachmentOffset = App.Placement(App.Vector(0, 0, 4), App.Rotation())
add_polygon(sketch17, [(-0.8, 2.9), (-0.8, 2.1), (0, 1.6), (0.8, 2.1), (0.8, 2.9), (0, 3.4)])  # lines 0-5
sketch17.addConstraint([
    Sketcher.Constraint("Vertical", 0),
    Sketcher.Constraint("Vertical", 3),
    Sketcher.Constraint("Symmetric", 0, 2, 2, 2, -2),
    Sketcher.Constraint("PointOnObject", 1, 2, -2),
    Sketcher.Constraint("PointOnObject", 4, 2, -2),
    Sketcher.Constraint("Parallel", 1, 4),
    Sketcher.Constraint("Parallel", 2, 5),
    Sketcher.Constraint("Angle", 1, Q("-30 deg")),
    Sketcher.Constraint("DistanceX", 0, 2, 2, 2, Q("1.5 mm")),
    Sketcher.Constraint("DistanceY", 0, 2, 0, 1, Q("0.866025 mm")),
    Sketcher.Constraint("DistanceY", -1, 1, 0, 2, Q("2.066987 mm")),
])
pocket6 = body.newObject("PartDesign::Pocket", "Pocket005")
pocket6.Profile = sketch17
pocket6.Type = "TwoLengths"
pocket6.Length = 1.2
pocket6.Length2 = 1.2
pocket6.Reversed = True

# Sketch on YZ plane
sketch18 = body.newObject("Sketcher::SketchObject", "Sketch017")
sketch18.AttachmentSupport = (doc.getObject("YZ_Plane"), [""])
sketch18.MapMode = "FlatFace"
add_polygon(sketch18, [(8, 10.75), (8, 8.1), (11, 8.1), (11, 10.6), (8.15, 10.6)])  # lines 0-4
sketch18.addGeometry(Part.LineSegment(App.Vector(11, 8.1, 0), App.Vector(8, 8.1, 0)), True)  # axis
sketch18.addConstraint([
    Sketcher.Constraint("Vertical", 0),
    Sketcher.Constraint("Horizontal", 1),
    Sketcher.Constraint("Vertical", 2),
    Sketcher.Constraint("Horizontal", 3),
    Sketcher.Constraint("Horizontal", 5),
    Sketcher.Constraint("Coincident", 5, 1, 1, 2),
    Sketcher.Constraint("Vertical", 4, 2, 5, 2),
    Sketcher.Constraint("DistanceX", 1, 1, 1, 2, Q("3 mm")),
    Sketcher.Constraint("Angle", 4, Q("135 deg")),
    Sketcher.Constraint("DistanceY", 2, 1, 2, 2, Q("2.5 mm")),
    Sketcher.Constraint("DistanceX", -1, 1, 0, 2, Q("8 mm")),
    Sketcher.Constraint("DistanceX", 3, 2, 3, 1, Q("2.85 mm")),
    Sketcher.Constraint("DistanceY", -1, 1, 0, 2, Q("8.1 mm")),
])
groove = body.newObject("PartDesign::Groove", "Groove")
groove.Profile = sketch18
groove.ReferenceAxis = (sketch18, ["Axis0"])
groove.Angle = 360

# Sketch on YZ plane
sketch19 = body.newObject("Sketcher::SketchObject", "Sketch018")
sketch19.AttachmentSupport = (doc.getObject("YZ_Plane"), [""])
sketch19.MapMode = "FlatFace"
add_polygon(sketch19, [(8, 16.75), (8, 14.1), (11, 14.1), (11, 16.6), (8.15, 16.6)])  # lines 0-4
sketch19.addGeometry(Part.LineSegment(App.Vector(11, 14.1, 0), App.Vector(8, 14.1, 0)), True)  # axis
sketch19.addConstraint([
    Sketcher.Constraint("Vertical", 0),
    Sketcher.Constraint("Horizontal", 1),
    Sketcher.Constraint("Vertical", 2),
    Sketcher.Constraint("Horizontal", 3),
    Sketcher.Constraint("Horizontal", 5),
    Sketcher.Constraint("Coincident", 5, 1, 1, 2),
    Sketcher.Constraint("Vertical", 4, 2, 5, 2),
    Sketcher.Constraint("DistanceX", 1, 1, 1, 2, Q("3 mm")),
    Sketcher.Constraint("Angle", 4, Q("135 deg")),
    Sketcher.Constraint("DistanceY", 2, 1, 2, 2, Q("2.5 mm")),
    Sketcher.Constraint("DistanceX", -1, 1, 0, 2, Q("8 mm")),
    Sketcher.Constraint("DistanceX", 3, 2, 3, 1, Q("2.85 mm")),
    Sketcher.Constraint("DistanceY", -1, 1, 0, 2, Q("14.1 mm")),
])
groove2 = body.newObject("PartDesign::Groove", "Groove001")
groove2.Profile = sketch19
groove2.ReferenceAxis = (sketch19, ["Axis0"])
groove2.Angle = 360

# Sketch on YZ plane
sketch20 = body.newObject("Sketcher::SketchObject", "Sketch019")
sketch20.AttachmentSupport = (doc.getObject("YZ_Plane"), [""])
sketch20.MapMode = "FlatFace"
add_polygon(sketch20, [(8, 22.25), (8, 19.6), (11, 19.6), (11, 22.1), (8.15, 22.1)])  # lines 0-4
sketch20.addGeometry(Part.LineSegment(App.Vector(11, 19.6, 0), App.Vector(8, 19.6, 0)), True)  # axis
sketch20.addConstraint([
    Sketcher.Constraint("Vertical", 0),
    Sketcher.Constraint("Horizontal", 1),
    Sketcher.Constraint("Vertical", 2),
    Sketcher.Constraint("Horizontal", 3),
    Sketcher.Constraint("Horizontal", 5),
    Sketcher.Constraint("Coincident", 5, 1, 1, 2),
    Sketcher.Constraint("Vertical", 4, 2, 5, 2),
    Sketcher.Constraint("DistanceX", 1, 1, 1, 2, Q("3 mm")),
    Sketcher.Constraint("Angle", 4, Q("135 deg")),
    Sketcher.Constraint("DistanceY", 2, 1, 2, 2, Q("2.5 mm")),
    Sketcher.Constraint("DistanceX", -1, 1, 0, 2, Q("8 mm")),
    Sketcher.Constraint("DistanceX", 3, 2, 3, 1, Q("2.85 mm")),
    Sketcher.Constraint("DistanceY", -1, 1, 0, 2, Q("19.6 mm")),
])
groove3 = body.newObject("PartDesign::Groove", "Groove002")
groove3.Profile = sketch20
groove3.ReferenceAxis = (sketch20, ["Axis0"])
groove3.Angle = 360

# Sketch on YZ plane
sketch21 = body.newObject("Sketcher::SketchObject", "Sketch020")
sketch21.AttachmentSupport = (doc.getObject("YZ_Plane"), [""])
sketch21.MapMode = "FlatFace"
add_polygon(sketch21, [(8, 27.75), (8, 25.1), (11, 25.1), (11, 27.6), (8.15, 27.6)])  # lines 0-4
sketch21.addGeometry(Part.LineSegment(App.Vector(11, 25.1, 0), App.Vector(8, 25.1, 0)), True)  # axis
sketch21.addConstraint([
    Sketcher.Constraint("Vertical", 0),
    Sketcher.Constraint("Horizontal", 1),
    Sketcher.Constraint("Vertical", 2),
    Sketcher.Constraint("Horizontal", 3),
    Sketcher.Constraint("Horizontal", 5),
    Sketcher.Constraint("Coincident", 5, 1, 1, 2),
    Sketcher.Constraint("Vertical", 4, 2, 5, 2),
    Sketcher.Constraint("DistanceX", 1, 1, 1, 2, Q("3 mm")),
    Sketcher.Constraint("Angle", 4, Q("135 deg")),
    Sketcher.Constraint("DistanceY", 2, 1, 2, 2, Q("2.5 mm")),
    Sketcher.Constraint("DistanceX", -1, 1, 0, 2, Q("8 mm")),
    Sketcher.Constraint("DistanceX", 3, 2, 3, 1, Q("2.85 mm")),
    Sketcher.Constraint("DistanceY", -1, 1, 0, 2, Q("25.1 mm")),
])
groove4 = body.newObject("PartDesign::Groove", "Groove003")
groove4.Profile = sketch21
groove4.ReferenceAxis = (sketch21, ["Axis0"])
groove4.Angle = 360

# Sketch on YZ plane
sketch22 = body.newObject("Sketcher::SketchObject", "Sketch021")
sketch22.AttachmentSupport = (doc.getObject("YZ_Plane"), [""])
sketch22.MapMode = "FlatFace"
add_polygon(sketch22, [(8, 33.75), (8, 31.1), (11, 31.1), (11, 33.6), (8.15, 33.6)])  # lines 0-4
sketch22.addGeometry(Part.LineSegment(App.Vector(11, 31.1, 0), App.Vector(8, 31.1, 0)), True)  # axis
sketch22.addConstraint([
    Sketcher.Constraint("Vertical", 0),
    Sketcher.Constraint("Horizontal", 1),
    Sketcher.Constraint("Vertical", 2),
    Sketcher.Constraint("Horizontal", 3),
    Sketcher.Constraint("Horizontal", 5),
    Sketcher.Constraint("Coincident", 5, 1, 1, 2),
    Sketcher.Constraint("Vertical", 4, 2, 5, 2),
    Sketcher.Constraint("DistanceX", 1, 1, 1, 2, Q("3 mm")),
    Sketcher.Constraint("Angle", 4, Q("135 deg")),
    Sketcher.Constraint("DistanceY", 2, 1, 2, 2, Q("2.5 mm")),
    Sketcher.Constraint("DistanceX", -1, 1, 0, 2, Q("8 mm")),
    Sketcher.Constraint("DistanceX", 3, 2, 3, 1, Q("2.85 mm")),
    Sketcher.Constraint("DistanceY", -1, 1, 0, 2, Q("31.1 mm")),
])
groove5 = body.newObject("PartDesign::Groove", "Groove004")
groove5.Profile = sketch22
groove5.ReferenceAxis = (sketch22, ["Axis0"])
groove5.Angle = 360

# Sketch on XY plane
sketch23 = body.newObject("Sketcher::SketchObject", "Sketch022")
sketch23.AttachmentSupport = (doc.getObject("XY_Plane"), [""])
sketch23.MapMode = "FlatFace"
sketch23.AttachmentOffset = App.Placement(App.Vector(0, 0, 42), App.Rotation())
sketch23.addGeometry([
    Part.LineSegment(App.Vector(-5, 38, 0), App.Vector(-5, 30, 0)),
    Part.ArcOfCircle(Part.Circle(App.Vector(0, 17, 0), App.Vector(0, 0, 1), 14), math.radians(68), math.radians(112)),
    Part.LineSegment(App.Vector(5, 30, 0), App.Vector(5, 38, 0)),
    Part.LineSegment(App.Vector(5, 38, 0), App.Vector(-5, 38, 0)),
], False)
sketch23.addConstraint([
    Sketcher.Constraint("Coincident", 0, 2, 1, 2),
    Sketcher.Constraint("Coincident", 1, 1, 2, 1),
    Sketcher.Constraint("Coincident", 2, 2, 3, 1),
    Sketcher.Constraint("Coincident", 3, 2, 0, 1),
    Sketcher.Constraint("Vertical", 0),
    Sketcher.Constraint("Vertical", 2),
    Sketcher.Constraint("Horizontal", 3),
    Sketcher.Constraint("Symmetric", 0, 2, 1, 1, -2),
    Sketcher.Constraint("DistanceX", 3, 2, 3, 1, Q("10.2 mm")),
    Sketcher.Constraint("DistanceY", -1, 1, 0, 2, Q("30 mm")),
    Sketcher.Constraint("Radius", 1, Q("13.505 mm")),
    Sketcher.Constraint("DistanceY", 0, 2, 0, 1, Q("7.7962 mm")),
])
pocket7 = body.newObject("PartDesign::Pocket", "Pocket006")
pocket7.Profile = sketch23
pocket7.Type = "TwoLengths"
pocket7.Length = 40
pocket7.Length2 = 40
pocket7.Reversed = True

# Sketch on YZ plane
sketch24 = body.newObject("Sketcher::SketchObject", "Sketch023")
sketch24.AttachmentSupport = (doc.getObject("YZ_Plane"), [""])
sketch24.MapMode = "FlatFace"
sketch24.addGeometry([
    Part.LineSegment(App.Vector(32.5, 20.9, 0), App.Vector(32.5, 25.5, 0)),  # 0
    Part.LineSegment(App.Vector(32.5, 25.5, 0), App.Vector(29.5, 25.5, 0)),  # 1
    Part.LineSegment(App.Vector(29.5, 25.5, 0), App.Vector(29.5, 20.4, 0)),  # 2
    Part.LineSegment(App.Vector(29.5, 20.4, 0), App.Vector(32, 20.4, 0)),  # 3
    Part.ArcOfCircle(Part.Circle(App.Vector(32, 20.9, 0), App.Vector(0, 0, 1), 0.5), math.radians(-90), math.radians(0)),  # 4
], False)
sketch24.addGeometry(Part.LineSegment(App.Vector(29.5, 25.5, 0), App.Vector(32.5, 25.5, 0)), True)  # axis
sketch24.addConstraint([
    Sketcher.Constraint("Coincident", 0, 2, 1, 1),
    Sketcher.Constraint("Coincident", 1, 2, 2, 1),
    Sketcher.Constraint("Coincident", 2, 2, 3, 1),
    Sketcher.Constraint("Tangent", 3, 2, 4, 1),
    Sketcher.Constraint("Tangent", 4, 2, 0, 1),
    Sketcher.Constraint("Vertical", 0),
    Sketcher.Constraint("Horizontal", 1),
    Sketcher.Constraint("Vertical", 2),
    Sketcher.Constraint("Horizontal", 3),
    Sketcher.Constraint("Horizontal", 5),
    Sketcher.Constraint("Coincident", 5, 1, 1, 2),
    Sketcher.Constraint("Vertical", 4, 2, 5, 2),
    Sketcher.Constraint("Radius", 4, Q("0.5 mm")),
    Sketcher.Constraint("DistanceX", 1, 2, 1, 1, Q("3 mm")),
    Sketcher.Constraint("DistanceY", 0, 1, 0, 2, Q("4.6 mm")),
    Sketcher.Constraint("DistanceX", -1, 1, 4, 3, Q("32 mm")),
    Sketcher.Constraint("DistanceY", -1, 1, 4, 3, Q("20.9 mm")),
])
revolution6 = body.newObject("PartDesign::Revolution", "Revolution005")
revolution6.Profile = sketch24
revolution6.ReferenceAxis = (sketch24, ["Axis0"])
revolution6.Angle = 360

# Sketch on YZ plane
sketch25 = body.newObject("Sketcher::SketchObject", "Sketch024")
sketch25.AttachmentSupport = (doc.getObject("YZ_Plane"), [""])
sketch25.MapMode = "FlatFace"
sketch25.addGeometry([
    Part.LineSegment(App.Vector(32.5, 9.9, 0), App.Vector(32.5, 14.5, 0)),  # 0
    Part.LineSegment(App.Vector(32.5, 14.5, 0), App.Vector(29.5, 14.5, 0)),  # 1
    Part.LineSegment(App.Vector(29.5, 14.5, 0), App.Vector(29.5, 9.4, 0)),  # 2
    Part.LineSegment(App.Vector(29.5, 9.4, 0), App.Vector(32, 9.4, 0)),  # 3
    Part.ArcOfCircle(Part.Circle(App.Vector(32, 9.9, 0), App.Vector(0, 0, 1), 0.5), math.radians(-90), math.radians(0)),  # 4
], False)
sketch25.addGeometry(Part.LineSegment(App.Vector(29.5, 14.5, 0), App.Vector(32.5, 14.5, 0)), True)  # axis
sketch25.addConstraint([
    Sketcher.Constraint("Coincident", 0, 2, 1, 1),
    Sketcher.Constraint("Coincident", 1, 2, 2, 1),
    Sketcher.Constraint("Coincident", 2, 2, 3, 1),
    Sketcher.Constraint("Tangent", 3, 2, 4, 1),
    Sketcher.Constraint("Tangent", 4, 2, 0, 1),
    Sketcher.Constraint("Vertical", 0),
    Sketcher.Constraint("Horizontal", 1),
    Sketcher.Constraint("Vertical", 2),
    Sketcher.Constraint("Horizontal", 3),
    Sketcher.Constraint("Horizontal", 5),
    Sketcher.Constraint("Coincident", 5, 1, 1, 2),
    Sketcher.Constraint("Vertical", 4, 2, 5, 2),
    Sketcher.Constraint("Radius", 4, Q("0.5 mm")),
    Sketcher.Constraint("DistanceX", 1, 2, 1, 1, Q("3 mm")),
    Sketcher.Constraint("DistanceY", 0, 1, 0, 2, Q("4.6 mm")),
    Sketcher.Constraint("DistanceX", -1, 1, 4, 3, Q("32 mm")),
    Sketcher.Constraint("DistanceY", -1, 1, 4, 3, Q("9.9 mm")),
])
revolution7 = body.newObject("PartDesign::Revolution", "Revolution006")
revolution7.Profile = sketch25
revolution7.ReferenceAxis = (sketch25, ["Axis0"])
revolution7.Angle = 360

# Sketch on XY plane
sketch26 = body.newObject("Sketcher::SketchObject", "Sketch025")
sketch26.AttachmentSupport = (doc.getObject("XY_Plane"), [""])
sketch26.MapMode = "FlatFace"
sketch26.AttachmentOffset = App.Placement(App.Vector(0, 0, 20), App.Rotation())
add_polygon(sketch26, [(-8, 29.5), (-5, 29.5), (-5, 32.5), (5, 32.5), (5, 29.5), (8, 29.5), (8, 35.5), (-8, 35.5)])  # lines 0-7
sketch26.addConstraint([
    Sketcher.Constraint("Horizontal", 0),
    Sketcher.Constraint("Vertical", 1),
    Sketcher.Constraint("Horizontal", 2),
    Sketcher.Constraint("Vertical", 3),
    Sketcher.Constraint("Horizontal", 4),
    Sketcher.Constraint("Vertical", 5),
    Sketcher.Constraint("Horizontal", 6),
    Sketcher.Constraint("Vertical", 7),
    Sketcher.Constraint("Symmetric", 0, 2, 3, 2, -2),
    Sketcher.Constraint("Equal", 0, 4),
    Sketcher.Constraint("Equal", 4, 1),
    Sketcher.Constraint("DistanceX", 0, 1, 0, 2, Q("3 mm")),
    Sketcher.Constraint("DistanceX", 2, 1, 2, 2, Q("10 mm")),
    Sketcher.Constraint("DistanceY", 5, 1, 5, 2, Q("6 mm")),
    Sketcher.Constraint("DistanceY", -1, 1, 0, 2, Q("29.5 mm")),
])
pocket8 = body.newObject("PartDesign::Pocket", "Pocket007")
pocket8.Profile = sketch26
pocket8.Type = "ThroughAll"
pocket8.Midplane = True

# Sketch on YZ plane
sketch27 = body.newObject("Sketcher::SketchObject", "Sketch026")
sketch27.AttachmentSupport = (doc.getObject("YZ_Plane"), [""])
sketch27.MapMode = "FlatFace"
add_polygon(sketch27, [(32.5, 23), (32.5, 25.5), (27.5, 25.5), (27.5, 23.4), (32.1, 23.4)])  # lines 0-4
sketch27.addGeometry(Part.LineSegment(App.Vector(27.5, 25.5, 0), App.Vector(32.5, 25.5, 0)), True)  # axis
sketch27.addConstraint([
    Sketcher.Constraint("Vertical", 0),
    Sketcher.Constraint("Horizontal", 1),
    Sketcher.Constraint("Vertical", 2),
    Sketcher.Constraint("Horizontal", 3),
    Sketcher.Constraint("Horizontal", 5),
    Sketcher.Constraint("Coincident", 5, 1, 1, 2),
    Sketcher.Constraint("Vertical", 4, 2, 5, 2),
    Sketcher.Constraint("DistanceX", 1, 2, 1, 1, Q("5 mm")),
    Sketcher.Constraint("Angle", 4, Q("-45 deg")),
    Sketcher.Constraint("DistanceY", 0, 1, 0, 2, Q("2.5 mm")),
    Sketcher.Constraint("DistanceY", -1, 1, 4, 2, Q("23 mm")),
    Sketcher.Constraint("DistanceX", -1, 1, 0, 2, Q("32.5 mm")),
    Sketcher.Constraint("DistanceX", 3, 1, 3, 2, Q("4.567 mm")),
])
groove6 = body.newObject("PartDesign::Groove", "Groove005")
groove6.Profile = sketch27
groove6.ReferenceAxis = (sketch27, ["Axis0"])
groove6.Angle = 360

# Sketch on YZ plane
sketch28 = body.newObject("Sketcher::SketchObject", "Sketch027")
sketch28.AttachmentSupport = (doc.getObject("YZ_Plane"), [""])
sketch28.MapMode = "FlatFace"
add_polygon(sketch28, [(32.5, 12), (32.5, 14.5), (27.5, 14.5), (27.5, 12.4), (32.1, 12.4)])  # lines 0-4
sketch28.addGeometry(Part.LineSegment(App.Vector(27.5, 14.5, 0), App.Vector(32.5, 14.5, 0)), True)  # axis
sketch28.addConstraint([
    Sketcher.Constraint("Vertical", 0),
    Sketcher.Constraint("Horizontal", 1),
    Sketcher.Constraint("Vertical", 2),
    Sketcher.Constraint("Horizontal", 3),
    Sketcher.Constraint("Horizontal", 5),
    Sketcher.Constraint("Coincident", 5, 1, 1, 2),
    Sketcher.Constraint("Vertical", 4, 2, 5, 2),
    Sketcher.Constraint("DistanceX", 1, 2, 1, 1, Q("5 mm")),
    Sketcher.Constraint("Angle", 4, Q("-45 deg")),
    Sketcher.Constraint("DistanceY", 0, 1, 0, 2, Q("2.5 mm")),
    Sketcher.Constraint("DistanceY", -1, 1, 4, 2, Q("12 mm")),
    Sketcher.Constraint("DistanceX", -1, 1, 0, 2, Q("32.5 mm")),
    Sketcher.Constraint("DistanceX", 3, 1, 3, 2, Q("4.567 mm")),
])
groove7 = body.newObject("PartDesign::Groove", "Groove006")
groove7.Profile = sketch28
groove7.ReferenceAxis = (sketch28, ["Axis0"])
groove7.Angle = 360

doc.recompute()
